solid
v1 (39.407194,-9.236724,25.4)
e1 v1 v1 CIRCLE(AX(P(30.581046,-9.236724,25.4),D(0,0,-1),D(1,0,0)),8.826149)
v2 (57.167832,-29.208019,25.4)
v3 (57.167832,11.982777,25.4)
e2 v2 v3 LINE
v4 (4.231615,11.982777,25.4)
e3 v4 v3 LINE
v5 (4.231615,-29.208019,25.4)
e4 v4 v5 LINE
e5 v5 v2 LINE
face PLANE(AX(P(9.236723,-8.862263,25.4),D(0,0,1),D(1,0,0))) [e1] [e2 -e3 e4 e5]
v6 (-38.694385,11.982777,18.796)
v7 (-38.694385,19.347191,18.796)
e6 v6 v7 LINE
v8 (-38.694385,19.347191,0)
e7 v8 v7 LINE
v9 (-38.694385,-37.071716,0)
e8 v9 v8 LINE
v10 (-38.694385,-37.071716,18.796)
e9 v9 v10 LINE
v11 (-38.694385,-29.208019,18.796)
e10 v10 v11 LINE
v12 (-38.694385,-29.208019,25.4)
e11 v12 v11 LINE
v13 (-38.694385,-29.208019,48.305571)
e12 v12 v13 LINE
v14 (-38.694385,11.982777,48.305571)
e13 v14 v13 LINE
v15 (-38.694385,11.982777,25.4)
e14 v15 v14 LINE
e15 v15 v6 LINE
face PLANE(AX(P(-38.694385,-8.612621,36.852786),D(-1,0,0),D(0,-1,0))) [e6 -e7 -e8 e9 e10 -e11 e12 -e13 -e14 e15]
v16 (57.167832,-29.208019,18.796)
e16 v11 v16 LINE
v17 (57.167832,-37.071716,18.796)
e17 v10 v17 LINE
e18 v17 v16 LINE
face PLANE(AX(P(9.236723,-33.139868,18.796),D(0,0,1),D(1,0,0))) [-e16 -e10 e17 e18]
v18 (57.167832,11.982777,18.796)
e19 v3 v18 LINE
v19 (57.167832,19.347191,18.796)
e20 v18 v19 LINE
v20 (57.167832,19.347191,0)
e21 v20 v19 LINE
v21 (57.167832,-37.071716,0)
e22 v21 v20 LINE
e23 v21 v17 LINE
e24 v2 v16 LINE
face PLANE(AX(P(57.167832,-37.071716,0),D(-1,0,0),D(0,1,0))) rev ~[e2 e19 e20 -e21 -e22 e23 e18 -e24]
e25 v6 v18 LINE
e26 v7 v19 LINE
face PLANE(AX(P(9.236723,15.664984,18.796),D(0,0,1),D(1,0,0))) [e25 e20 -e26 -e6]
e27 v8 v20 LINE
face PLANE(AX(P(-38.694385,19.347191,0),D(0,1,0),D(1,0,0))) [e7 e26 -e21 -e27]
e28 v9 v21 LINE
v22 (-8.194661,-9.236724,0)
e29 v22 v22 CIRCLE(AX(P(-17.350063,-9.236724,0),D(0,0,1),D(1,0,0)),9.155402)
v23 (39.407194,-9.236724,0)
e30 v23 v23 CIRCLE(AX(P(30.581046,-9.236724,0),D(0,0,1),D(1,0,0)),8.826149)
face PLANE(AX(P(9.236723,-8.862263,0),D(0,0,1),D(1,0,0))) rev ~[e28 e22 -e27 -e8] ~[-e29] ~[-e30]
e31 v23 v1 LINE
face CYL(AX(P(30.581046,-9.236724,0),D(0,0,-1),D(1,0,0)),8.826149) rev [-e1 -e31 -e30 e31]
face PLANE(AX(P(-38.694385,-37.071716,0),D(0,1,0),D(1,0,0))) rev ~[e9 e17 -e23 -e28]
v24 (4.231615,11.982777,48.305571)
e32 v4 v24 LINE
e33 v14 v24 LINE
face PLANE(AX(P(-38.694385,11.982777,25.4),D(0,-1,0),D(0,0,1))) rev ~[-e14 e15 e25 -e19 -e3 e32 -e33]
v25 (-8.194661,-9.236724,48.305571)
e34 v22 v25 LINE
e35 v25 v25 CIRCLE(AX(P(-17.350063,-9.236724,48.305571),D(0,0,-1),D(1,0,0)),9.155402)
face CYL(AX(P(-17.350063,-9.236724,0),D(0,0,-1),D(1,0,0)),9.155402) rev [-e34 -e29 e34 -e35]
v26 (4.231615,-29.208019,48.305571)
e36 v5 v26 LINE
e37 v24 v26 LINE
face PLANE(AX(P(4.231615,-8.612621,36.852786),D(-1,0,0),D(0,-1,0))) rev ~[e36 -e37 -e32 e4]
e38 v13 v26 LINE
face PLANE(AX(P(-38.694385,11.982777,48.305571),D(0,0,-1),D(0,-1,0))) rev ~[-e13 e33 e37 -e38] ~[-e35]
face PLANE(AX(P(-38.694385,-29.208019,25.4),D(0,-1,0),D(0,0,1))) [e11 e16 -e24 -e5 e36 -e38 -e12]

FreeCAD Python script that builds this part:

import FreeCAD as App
import Part
import Sketcher
from FreeCAD import Vector
Q = App.Units.Quantity


def add_polygon(sketch, points):
    """Adds a closed chain of lines whose ends are joined by coincident constraints."""
    first, n = sketch.GeometryCount, len(points)
    for a, b in zip(points, points[1:] + points[:1]):
        sketch.addGeometry(Part.LineSegment(App.Vector(*a, 0), App.Vector(*b, 0)), False)
    for i in range(n):
        sketch.addConstraint(Sketcher.Constraint("Coincident", first + i, 2, first + (i + 1) % n, 1))

doc = App.newDocument("Part")
body = doc.addObject("PartDesign::Body", "Body")

# Sketch on XY plane
sketch1 = body.newObject("Sketcher::SketchObject", "Sketch")
sketch1.AttachmentSupport = (doc.getObject("XY_Plane"), [""])
sketch1.MapMode = "FlatFace"
add_polygon(sketch1, [(-38.694385, 19.347191), (-38.694385, -37.071716), (57.167832, -37.071716), (57.167832, 19.347191)])  # lines 0-3
sketch1.addConstraint([
    Sketcher.Constraint("Vertical", 0),
    Sketcher.Constraint("Horizontal", 1),
    Sketcher.Constraint("Vertical", 2),
    Sketcher.Constraint("Horizontal", 3),
    Sketcher.Constraint("DistanceX", 1, 1, 1, 2, Q("95.862217 mm")),
    Sketcher.Constraint("DistanceY", 0, 2, 0, 1, Q("56.418907 mm")),
    Sketcher.Constraint("DistanceX", -1, 1, 1, 2, Q("57.167832 mm")),
    Sketcher.Constraint("DistanceY", -1, 1, 2, 2, Q("19.347191 mm")),
])
pad1 = body.newObject("PartDesign::Pad", "Pad")
pad1.Profile = sketch1
pad1.Length = Q("1 in")

# Sketch on XY plane
sketch2 = body.newObject("Sketcher::SketchObject", "Sketch001")
sketch2.AttachmentSupport = (doc.getObject("XY_Plane"), [""])
sketch2.MapMode = "FlatFace"
sketch2.AttachmentOffset = App.Placement(Vector(0, 0, 1 * 25.4), App.Rotation())
add_polygon(sketch2, [(-38.694385, -29.208019), (-38.694385, -37.071716), (57.167832, -37.071716), (57.167832, -29.208019)])  # lines 0-3
add_polygon(sketch2, [(-38.694385, 19.347191), (-38.694385, 11.982777), (57.167832, 11.982777), (57.167832, 19.347191)])  # lines 4-7
sketch2.addConstraint([
    Sketcher.Constraint("Vertical", 0),
    Sketcher.Constraint("Horizontal", 1),
    Sketcher.Constraint("Vertical", 2),
    Sketcher.Constraint("Horizontal", 3),
    Sketcher.Constraint("Vertical", 4),
    Sketcher.Constraint("Horizontal", 5),
    Sketcher.Constraint("Vertical", 6),
    Sketcher.Constraint("Horizontal", 7),
    Sketcher.Constraint("Vertical", 3, 2, 4, 2),
    Sketcher.Constraint("Vertical", 2, 2, 5, 2),
    Sketcher.Constraint("DistanceX", 1, 1, 1, 2, Q("95.862217 mm")),
    Sketcher.Constraint("DistanceY", 0, 2, 0, 1, Q("7.863697 mm")),
    Sketcher.Constraint("DistanceY", 4, 2, 4, 1, Q("7.364414 mm")),
    Sketcher.Constraint("DistanceX", -1, 1, 1, 2, Q("57.167832 mm")),
    Sketcher.Constraint("DistanceY", 2, 2, -1, 1, Q("29.208019 mm")),
    Sketcher.Constraint("DistanceY", -1, 1, 6, 2, Q("19.347191 mm")),
])
pocket1 = body.newObject("PartDesign::Pocket", "Pocket")
pocket1.Profile = sketch2
pocket1.Length = Q("0.26 in")

# Sketch on YZ plane
sketch3 = body.newObject("Sketcher::SketchObject", "Sketch002")
sketch3.AttachmentSupport = (doc.getObject("YZ_Plane"), [""])
sketch3.MapMode = "FlatFace"
sketch3.AttachmentOffset = App.Placement(Vector(0, 0, -38.694385), App.Rotation())
add_polygon(sketch3, [(11.982777, 48.305571), (11.982777, 25.4), (-29.208019, 25.4), (-29.208019, 48.305571)])  # lines 0-3
sketch3.addConstraint([
    Sketcher.Constraint("Vertical", 0),
    Sketcher.Constraint("Horizontal", 1),
    Sketcher.Constraint("Vertical", 2),
    Sketcher.Constraint("Horizontal", 3),
    Sketcher.Constraint("DistanceY", -1, 1, 0, 2, Q("1 in")),
    Sketcher.Constraint("DistanceY", 0, 2, 0, 1, Q("22.905571 mm")),
    Sketcher.Constraint("DistanceX", 1, 2, 1, 1, Q("41.190797 mm")),
    Sketcher.Constraint("DistanceX", 1, 2, -1, 1, Q("29.208019 mm")),
])
pad2 = body.newObject("PartDesign::Pad", "Pad001")
pad2.Profile = sketch3
pad2.Length = Q("1.69 in")

# Sketch on XY plane
sketch4 = body.newObject("Sketcher::SketchObject", "Sketch003")
sketch4.AttachmentSupport = (doc.getObject("XY_Plane"), [""])
sketch4.MapMode = "FlatFace"
sketch4.addGeometry([
    Part.Circle(Vector(-17.350063, -9.236724, 0), Vector(0, 0, 1), 9.155402),
    Part.Circle(Vector(30.581046, -9.236724, 0), Vector(0, 0, 1), 8.826149),
], False)
sketch4.addConstraint([
    Sketcher.Constraint("Horizontal", 0, 3, 1, 3),
    Sketcher.Constraint("Diameter", 0, Q("18.310803 mm")),
    Sketcher.Constraint("Diameter", 1, Q("17.652297 mm")),
    Sketcher.Constraint("DistanceX", 0, 3, 1, 3, Q("47.931109 mm")),
    Sketcher.Constraint("DistanceX", 0, 3, -1, 1, Q("17.350063 mm")),
    Sketcher.Constraint("DistanceY", 0, 3, -1, 1, Q("9.236724 mm")),
])
pocket2 = body.newObject("PartDesign::Pocket", "Pocket001")
pocket2.Profile = sketch4
pocket2.Length = Q("3.66 in")
pocket2.Reversed = True

doc.recompute()
